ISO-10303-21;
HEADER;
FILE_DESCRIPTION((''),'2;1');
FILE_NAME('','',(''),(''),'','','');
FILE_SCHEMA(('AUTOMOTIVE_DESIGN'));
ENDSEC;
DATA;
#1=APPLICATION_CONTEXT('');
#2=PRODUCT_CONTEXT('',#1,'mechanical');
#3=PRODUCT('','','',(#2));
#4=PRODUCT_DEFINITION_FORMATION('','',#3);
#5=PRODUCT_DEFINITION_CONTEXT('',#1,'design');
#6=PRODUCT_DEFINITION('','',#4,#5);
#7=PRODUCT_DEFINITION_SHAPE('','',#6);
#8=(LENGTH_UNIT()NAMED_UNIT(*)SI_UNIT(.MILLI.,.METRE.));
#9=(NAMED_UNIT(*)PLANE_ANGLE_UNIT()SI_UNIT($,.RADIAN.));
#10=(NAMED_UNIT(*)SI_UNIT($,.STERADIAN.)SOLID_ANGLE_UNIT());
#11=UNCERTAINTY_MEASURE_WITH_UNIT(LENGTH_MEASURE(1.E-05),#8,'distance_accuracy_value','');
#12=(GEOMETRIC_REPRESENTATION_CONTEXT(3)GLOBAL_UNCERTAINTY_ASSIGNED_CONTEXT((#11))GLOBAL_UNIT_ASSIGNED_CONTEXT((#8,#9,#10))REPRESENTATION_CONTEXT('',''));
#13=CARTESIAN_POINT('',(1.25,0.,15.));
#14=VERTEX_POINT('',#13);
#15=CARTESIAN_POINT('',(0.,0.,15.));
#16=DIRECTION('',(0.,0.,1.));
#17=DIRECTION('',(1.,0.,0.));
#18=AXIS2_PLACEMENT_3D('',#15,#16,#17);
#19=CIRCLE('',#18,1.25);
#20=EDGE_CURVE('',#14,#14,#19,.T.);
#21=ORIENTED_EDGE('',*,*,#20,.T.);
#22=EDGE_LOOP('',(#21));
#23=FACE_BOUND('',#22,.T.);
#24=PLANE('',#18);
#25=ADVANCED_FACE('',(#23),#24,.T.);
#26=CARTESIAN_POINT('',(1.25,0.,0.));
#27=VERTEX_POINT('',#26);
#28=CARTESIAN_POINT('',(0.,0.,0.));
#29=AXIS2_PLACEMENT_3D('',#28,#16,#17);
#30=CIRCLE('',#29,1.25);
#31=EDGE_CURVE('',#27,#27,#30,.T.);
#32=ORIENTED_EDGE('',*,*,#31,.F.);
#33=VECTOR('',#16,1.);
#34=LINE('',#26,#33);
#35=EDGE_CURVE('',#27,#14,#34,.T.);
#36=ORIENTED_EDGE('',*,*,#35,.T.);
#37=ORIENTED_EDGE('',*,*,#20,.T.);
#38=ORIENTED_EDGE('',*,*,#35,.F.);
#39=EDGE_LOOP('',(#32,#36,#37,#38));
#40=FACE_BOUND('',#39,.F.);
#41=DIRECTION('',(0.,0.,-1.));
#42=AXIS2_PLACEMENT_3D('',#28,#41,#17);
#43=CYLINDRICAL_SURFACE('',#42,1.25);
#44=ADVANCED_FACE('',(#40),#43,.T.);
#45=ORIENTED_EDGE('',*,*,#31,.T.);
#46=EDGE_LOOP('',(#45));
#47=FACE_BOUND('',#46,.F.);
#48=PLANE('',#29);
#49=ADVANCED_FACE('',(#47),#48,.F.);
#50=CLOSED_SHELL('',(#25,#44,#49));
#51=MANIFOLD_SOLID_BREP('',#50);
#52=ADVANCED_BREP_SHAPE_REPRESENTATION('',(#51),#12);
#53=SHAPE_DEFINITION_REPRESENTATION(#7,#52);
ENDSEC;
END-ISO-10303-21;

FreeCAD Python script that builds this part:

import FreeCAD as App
import Part
import Sketcher
Q = App.Units.Quantity

doc = App.newDocument("Part")
params = doc.addObject("Spreadsheet::Sheet", "Params")
for row, (alias, value) in enumerate([
    ("sketch1_diameter", "2.5 mm"),
    ("pad1_length", "15 mm"),
], start=1):
    params.set(f"A{row}", alias)
    params.set(f"B{row}", "=" + value)
    params.setAlias(f"B{row}", alias)

body = doc.addObject("PartDesign::Body", "Body")

# Sketch on XY plane
sketch1 = body.newObject("Sketcher::SketchObject", "Sketch")
sketch1.AttachmentSupport = (doc.getObject("XY_Plane"), [""])
sketch1.MapMode = "FlatFace"
sketch1.addGeometry(Part.Circle(App.Vector(0, 0, 0), App.Vector(0, 0, 1), 1.2), False)
sketch1.addConstraint([
    Sketcher.Constraint("Coincident", 0, 3, -1, 1),
    Sketcher.Constraint("Diameter", 0, Q("2.5 mm")),
])
sketch1.setExpression("Constraints[1]", "Params.sketch1_diameter")
pad1 = body.newObject("PartDesign::Pad", "Pad")
pad1.Profile = sketch1
pad1.setExpression("Length", "Params.pad1_length")

doc.recompute()
